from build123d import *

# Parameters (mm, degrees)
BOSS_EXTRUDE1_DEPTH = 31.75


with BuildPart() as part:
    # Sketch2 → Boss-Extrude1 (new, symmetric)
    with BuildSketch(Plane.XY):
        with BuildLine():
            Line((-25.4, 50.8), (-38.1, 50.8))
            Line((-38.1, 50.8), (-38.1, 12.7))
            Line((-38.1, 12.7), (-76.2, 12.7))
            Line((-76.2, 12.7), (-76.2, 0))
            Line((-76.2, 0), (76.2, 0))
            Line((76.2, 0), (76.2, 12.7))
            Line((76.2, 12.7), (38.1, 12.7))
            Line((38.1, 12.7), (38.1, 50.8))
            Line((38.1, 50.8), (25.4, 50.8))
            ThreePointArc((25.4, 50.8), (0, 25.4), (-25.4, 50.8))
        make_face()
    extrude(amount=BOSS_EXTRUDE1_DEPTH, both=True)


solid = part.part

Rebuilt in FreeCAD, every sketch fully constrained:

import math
import FreeCAD as App
import Part
import Sketcher
Q = App.Units.Quantity

doc = App.newDocument("Part")
body = doc.addObject("PartDesign::Body", "Body")

sketch1 = body.newObject("Sketcher::SketchObject", "Sketch")
sketch1.AttachmentSupport = (doc.getObject("XY_Plane"), [""])
sketch1.MapMode = "FlatFace"
sketch1.addGeometry([
    Part.LineSegment(App.Vector(-25, 51, 0), App.Vector(-38, 51, 0)),
    Part.LineSegment(App.Vector(-38, 51, 0), App.Vector(-38, 13, 0)),
    Part.LineSegment(App.Vector(-38, 13, 0), App.Vector(-76, 13, 0)),
    Part.LineSegment(App.Vector(-76, 13, 0), App.Vector(-76, 0, 0)),
    Part.LineSegment(App.Vector(-76, 0, 0), App.Vector(76, 0, 0)),
    Part.LineSegment(App.Vector(76, 0, 0), App.Vector(76, 13, 0)),
    Part.LineSegment(App.Vector(76, 13, 0), App.Vector(38, 13, 0)),
    Part.LineSegment(App.Vector(38, 13, 0), App.Vector(38, 51, 0)),
    Part.LineSegment(App.Vector(38, 51, 0), App.Vector(25, 51, 0)),
    Part.ArcOfCircle(Part.Circle(App.Vector(0, 51, 0), App.Vector(0, 0, 1), 25), math.radians(180), math.radians(360)),
], False)
sketch1.addConstraint([
    Sketcher.Constraint("Coincident", 0, 2, 1, 1),
    Sketcher.Constraint("Coincident", 1, 2, 2, 1),
    Sketcher.Constraint("Coincident", 2, 2, 3, 1),
    Sketcher.Constraint("Coincident", 3, 2, 4, 1),
    Sketcher.Constraint("Coincident", 4, 2, 5, 1),
    Sketcher.Constraint("Coincident", 5, 2, 6, 1),
    Sketcher.Constraint("Coincident", 6, 2, 7, 1),
    Sketcher.Constraint("Coincident", 7, 2, 8, 1),
    Sketcher.Constraint("Coincident", 8, 2, 9, 2),
    Sketcher.Constraint("Coincident", 9, 1, 0, 1),
    Sketcher.Constraint("Horizontal", 0),
    Sketcher.Constraint("Vertical", 1),
    Sketcher.Constraint("Horizontal", 2),
    Sketcher.Constraint("Vertical", 3),
    Sketcher.Constraint("Horizontal", 4),
    Sketcher.Constraint("Vertical", 5),
    Sketcher.Constraint("Horizontal", 6),
    Sketcher.Constraint("Vertical", 7),
    Sketcher.Constraint("Horizontal", 8),
    Sketcher.Constraint("Symmetric", 3, 2, 4, 2, -1, 1),
    Sketcher.Constraint("Symmetric", 1, 2, 6, 2, -2),
    Sketcher.Constraint("Symmetric", 8, 2, 9, 1, -2),
    Sketcher.Constraint("Horizontal", 9, 3, 0, 2),
    Sketcher.Constraint("Equal", 6, 1),
    Sketcher.Constraint("Equal", 8, 3),
    Sketcher.Constraint("Radius", 9, Q("1 in")),
    Sketcher.Constraint("DistanceX", 4, 1, 4, 2, Q("6 in")),
    Sketcher.Constraint("DistanceX", 0, 2, 0, 1, Q("0.5 in")),
])
pad1 = body.newObject("PartDesign::Pad", "Pad")
pad1.Profile = sketch1
pad1.Length = Q("2.5 in")
pad1.Midplane = True

doc.recompute()
